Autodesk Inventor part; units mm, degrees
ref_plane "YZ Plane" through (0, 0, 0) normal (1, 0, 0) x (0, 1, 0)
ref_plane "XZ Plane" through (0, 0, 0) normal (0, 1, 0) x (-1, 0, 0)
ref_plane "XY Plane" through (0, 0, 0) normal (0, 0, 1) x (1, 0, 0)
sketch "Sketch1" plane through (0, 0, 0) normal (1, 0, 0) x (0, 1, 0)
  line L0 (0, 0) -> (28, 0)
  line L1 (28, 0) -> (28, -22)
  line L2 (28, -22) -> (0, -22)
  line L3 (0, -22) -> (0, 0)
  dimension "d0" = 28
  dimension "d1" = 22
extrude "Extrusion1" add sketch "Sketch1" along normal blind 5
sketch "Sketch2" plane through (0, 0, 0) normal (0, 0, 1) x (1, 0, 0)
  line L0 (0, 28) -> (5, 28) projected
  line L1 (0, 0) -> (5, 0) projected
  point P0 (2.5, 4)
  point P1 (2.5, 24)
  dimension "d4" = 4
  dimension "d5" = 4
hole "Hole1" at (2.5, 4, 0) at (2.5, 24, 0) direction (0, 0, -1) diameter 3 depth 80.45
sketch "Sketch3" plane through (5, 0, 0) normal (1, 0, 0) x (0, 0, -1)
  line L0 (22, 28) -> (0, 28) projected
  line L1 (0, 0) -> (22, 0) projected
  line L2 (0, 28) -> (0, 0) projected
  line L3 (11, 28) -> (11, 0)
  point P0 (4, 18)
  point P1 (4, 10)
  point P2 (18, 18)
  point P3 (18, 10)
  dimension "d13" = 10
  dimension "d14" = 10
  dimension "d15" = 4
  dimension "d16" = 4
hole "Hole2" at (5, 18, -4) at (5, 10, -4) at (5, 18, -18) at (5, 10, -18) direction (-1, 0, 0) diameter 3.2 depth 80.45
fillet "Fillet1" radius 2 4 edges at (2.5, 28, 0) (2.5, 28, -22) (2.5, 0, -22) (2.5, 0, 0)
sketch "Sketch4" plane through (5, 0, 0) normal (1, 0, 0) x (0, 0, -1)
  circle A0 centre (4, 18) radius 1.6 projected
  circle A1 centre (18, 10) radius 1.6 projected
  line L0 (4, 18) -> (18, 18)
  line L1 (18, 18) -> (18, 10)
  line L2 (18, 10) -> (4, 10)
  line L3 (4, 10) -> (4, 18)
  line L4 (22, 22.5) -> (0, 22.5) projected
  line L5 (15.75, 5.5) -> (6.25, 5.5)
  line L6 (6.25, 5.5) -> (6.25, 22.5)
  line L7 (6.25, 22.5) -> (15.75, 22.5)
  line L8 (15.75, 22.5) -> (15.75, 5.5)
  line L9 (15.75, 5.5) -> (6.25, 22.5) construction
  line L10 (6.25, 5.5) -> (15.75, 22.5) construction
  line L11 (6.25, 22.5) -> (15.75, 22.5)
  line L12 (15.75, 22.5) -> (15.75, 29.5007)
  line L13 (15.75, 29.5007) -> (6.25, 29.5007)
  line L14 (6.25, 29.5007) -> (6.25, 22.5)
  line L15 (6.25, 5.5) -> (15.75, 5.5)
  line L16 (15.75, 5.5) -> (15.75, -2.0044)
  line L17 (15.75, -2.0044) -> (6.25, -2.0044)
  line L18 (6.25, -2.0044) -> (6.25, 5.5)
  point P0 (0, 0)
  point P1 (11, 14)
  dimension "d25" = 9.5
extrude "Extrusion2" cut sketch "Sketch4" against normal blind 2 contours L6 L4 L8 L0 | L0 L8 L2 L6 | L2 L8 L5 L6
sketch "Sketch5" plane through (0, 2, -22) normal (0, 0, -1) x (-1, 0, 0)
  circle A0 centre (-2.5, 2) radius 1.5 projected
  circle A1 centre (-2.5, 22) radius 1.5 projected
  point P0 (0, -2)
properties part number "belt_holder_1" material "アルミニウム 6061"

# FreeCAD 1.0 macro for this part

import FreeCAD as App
import Part
import Sketcher
from FreeCAD import Vector
Q = App.Units.Quantity


def edges_at(feature, points):
    """Names of the edges that pass closest to the given points."""
    edges = feature.Shape.Edges
    near = lambda p: min(range(len(edges)), key=lambda i: edges[i].distToShape(Part.Vertex(*p))[0])
    return sorted({f"Edge{near(p) + 1}" for p in points})


def add_polygon(sketch, points):
    """Adds a closed chain of lines whose ends are joined by coincident constraints."""
    first, n = sketch.GeometryCount, len(points)
    for a, b in zip(points, points[1:] + points[:1]):
        sketch.addGeometry(Part.LineSegment(App.Vector(*a, 0), App.Vector(*b, 0)), False)
    for i in range(n):
        sketch.addConstraint(Sketcher.Constraint("Coincident", first + i, 2, first + (i + 1) % n, 1))

doc = App.newDocument("Part")
body = doc.addObject("PartDesign::Body", "Body")

# Sketch on YZ plane
sketch1 = body.newObject("Sketcher::SketchObject", "Sketch")
sketch1.AttachmentSupport = (doc.getObject("YZ_Plane"), [""])
sketch1.MapMode = "FlatFace"
add_polygon(sketch1, [(28, 0), (0, 0), (0, -22), (28, -22)])  # lines 0-3
sketch1.addConstraint([
    Sketcher.Constraint("Horizontal", 0),
    Sketcher.Constraint("Vertical", 1),
    Sketcher.Constraint("Horizontal", 2),
    Sketcher.Constraint("Vertical", 3),
    Sketcher.Constraint("Coincident", 0, 2, -1, 1),
    Sketcher.Constraint("DistanceX", 0, 2, 0, 1, Q("28 mm")),
    Sketcher.Constraint("DistanceY", 1, 2, 1, 1, Q("22 mm")),
])
pad1 = body.newObject("PartDesign::Pad", "Pad")
pad1.Profile = sketch1
pad1.Length = 5

# Sketch on XY plane
sketch2 = body.newObject("Sketcher::SketchObject", "Sketch001")
sketch2.AttachmentSupport = (doc.getObject("XY_Plane"), [""])
sketch2.MapMode = "FlatFace"
sketch2.addGeometry([
    Part.Circle(Vector(2.5, 4, 0), Vector(0, 0, 1), 1.5),
    Part.Circle(Vector(2.5, 24, 0), Vector(0, 0, 1), 1.5),
], False)
sketch2.addConstraint([
    Sketcher.Constraint("Equal", 0, 1),
    Sketcher.Constraint("Vertical", 0, 3, 1, 3),
    Sketcher.Constraint("Diameter", 0, Q("3 mm")),
    Sketcher.Constraint("DistanceY", -1, 1, 0, 3, Q("4 mm")),
    Sketcher.Constraint("DistanceY", -1, 1, 1, 3, Q("24 mm")),
    Sketcher.Constraint("DistanceX", -1, 1, 0, 3, Q("2.5 mm")),
])
doc.recompute()
hole = body.newObject("PartDesign::Hole", "Hole")
hole.Profile = sketch2
hole.ThreadType = "None"
hole.Diameter = 3
hole.DepthType = "Dimension"
hole.Depth = 80.45
hole.DrillPoint = "Flat"

# Sketch on YZ plane
sketch3 = body.newObject("Sketcher::SketchObject", "Sketch002")
sketch3.AttachmentSupport = (doc.getObject("YZ_Plane"), [""])
sketch3.MapMode = "FlatFace"
sketch3.AttachmentOffset = App.Placement(Vector(0, 0, 5), App.Rotation())
sketch3.addGeometry([
    Part.Circle(Vector(18, -4, 0), Vector(0, 0, 1), 1.6),
    Part.Circle(Vector(10, -4, 0), Vector(0, 0, 1), 1.6),
    Part.Circle(Vector(18, -18, 0), Vector(0, 0, 1), 1.6),
    Part.Circle(Vector(10, -18, 0), Vector(0, 0, 1), 1.6),
], False)
sketch3.addConstraint([
    Sketcher.Constraint("Equal", 0, 1),
    Sketcher.Constraint("Equal", 1, 2),
    Sketcher.Constraint("Equal", 2, 3),
    Sketcher.Constraint("Horizontal", 0, 3, 1, 3),
    Sketcher.Constraint("Horizontal", 2, 3, 3, 3),
    Sketcher.Constraint("Vertical", 0, 3, 2, 3),
    Sketcher.Constraint("Vertical", 1, 3, 3, 3),
    Sketcher.Constraint("Diameter", 0, Q("3.2 mm")),
    Sketcher.Constraint("DistanceX", -1, 1, 0, 3, Q("18 mm")),
    Sketcher.Constraint("DistanceY", 0, 3, -1, 1, Q("4 mm")),
    Sketcher.Constraint("DistanceX", -1, 1, 1, 3, Q("10 mm")),
    Sketcher.Constraint("DistanceY", 2, 3, -1, 1, Q("18 mm")),
])
doc.recompute()
hole2 = body.newObject("PartDesign::Hole", "Hole001")
hole2.Profile = sketch3
hole2.ThreadType = "None"
hole2.Diameter = 3.2
hole2.DepthType = "Dimension"
hole2.Depth = 80.45
hole2.DrillPoint = "Flat"
doc.recompute()

fillet = body.newObject("PartDesign::Fillet", "Fillet")
fillet.Base = (hole2, edges_at(hole2, [
    (2.5, 28, 0),
    (2.5, 28, -22),
    (2.5, 0, -22),
    (2.5, 0, 0),
]))
fillet.Radius = 2

# Sketch on YZ plane
sketch4 = body.newObject("Sketcher::SketchObject", "Sketch003")
sketch4.AttachmentSupport = (doc.getObject("YZ_Plane"), [""])
sketch4.MapMode = "FlatFace"
sketch4.AttachmentOffset = App.Placement(Vector(0, 0, 5), App.Rotation())
add_polygon(sketch4, [(22, -6), (6, -6), (6, -16), (22, -16)])  # lines 0-3
sketch4.addConstraint([
    Sketcher.Constraint("Horizontal", 0),
    Sketcher.Constraint("Vertical", 1),
    Sketcher.Constraint("Horizontal", 2),
    Sketcher.Constraint("Vertical", 3),
    Sketcher.Constraint("DistanceY", 1, 2, 1, 1, Q("9.5 mm")),
    Sketcher.Constraint("DistanceX", 0, 2, 0, 1, Q("17 mm")),
    Sketcher.Constraint("DistanceX", -1, 1, 0, 2, Q("5.5 mm")),
    Sketcher.Constraint("DistanceY", 0, 2, -1, 1, Q("6.25 mm")),
])
pocket1 = body.newObject("PartDesign::Pocket", "Pocket")
pocket1.Profile = sketch4
pocket1.Length = 2

doc.recompute()
